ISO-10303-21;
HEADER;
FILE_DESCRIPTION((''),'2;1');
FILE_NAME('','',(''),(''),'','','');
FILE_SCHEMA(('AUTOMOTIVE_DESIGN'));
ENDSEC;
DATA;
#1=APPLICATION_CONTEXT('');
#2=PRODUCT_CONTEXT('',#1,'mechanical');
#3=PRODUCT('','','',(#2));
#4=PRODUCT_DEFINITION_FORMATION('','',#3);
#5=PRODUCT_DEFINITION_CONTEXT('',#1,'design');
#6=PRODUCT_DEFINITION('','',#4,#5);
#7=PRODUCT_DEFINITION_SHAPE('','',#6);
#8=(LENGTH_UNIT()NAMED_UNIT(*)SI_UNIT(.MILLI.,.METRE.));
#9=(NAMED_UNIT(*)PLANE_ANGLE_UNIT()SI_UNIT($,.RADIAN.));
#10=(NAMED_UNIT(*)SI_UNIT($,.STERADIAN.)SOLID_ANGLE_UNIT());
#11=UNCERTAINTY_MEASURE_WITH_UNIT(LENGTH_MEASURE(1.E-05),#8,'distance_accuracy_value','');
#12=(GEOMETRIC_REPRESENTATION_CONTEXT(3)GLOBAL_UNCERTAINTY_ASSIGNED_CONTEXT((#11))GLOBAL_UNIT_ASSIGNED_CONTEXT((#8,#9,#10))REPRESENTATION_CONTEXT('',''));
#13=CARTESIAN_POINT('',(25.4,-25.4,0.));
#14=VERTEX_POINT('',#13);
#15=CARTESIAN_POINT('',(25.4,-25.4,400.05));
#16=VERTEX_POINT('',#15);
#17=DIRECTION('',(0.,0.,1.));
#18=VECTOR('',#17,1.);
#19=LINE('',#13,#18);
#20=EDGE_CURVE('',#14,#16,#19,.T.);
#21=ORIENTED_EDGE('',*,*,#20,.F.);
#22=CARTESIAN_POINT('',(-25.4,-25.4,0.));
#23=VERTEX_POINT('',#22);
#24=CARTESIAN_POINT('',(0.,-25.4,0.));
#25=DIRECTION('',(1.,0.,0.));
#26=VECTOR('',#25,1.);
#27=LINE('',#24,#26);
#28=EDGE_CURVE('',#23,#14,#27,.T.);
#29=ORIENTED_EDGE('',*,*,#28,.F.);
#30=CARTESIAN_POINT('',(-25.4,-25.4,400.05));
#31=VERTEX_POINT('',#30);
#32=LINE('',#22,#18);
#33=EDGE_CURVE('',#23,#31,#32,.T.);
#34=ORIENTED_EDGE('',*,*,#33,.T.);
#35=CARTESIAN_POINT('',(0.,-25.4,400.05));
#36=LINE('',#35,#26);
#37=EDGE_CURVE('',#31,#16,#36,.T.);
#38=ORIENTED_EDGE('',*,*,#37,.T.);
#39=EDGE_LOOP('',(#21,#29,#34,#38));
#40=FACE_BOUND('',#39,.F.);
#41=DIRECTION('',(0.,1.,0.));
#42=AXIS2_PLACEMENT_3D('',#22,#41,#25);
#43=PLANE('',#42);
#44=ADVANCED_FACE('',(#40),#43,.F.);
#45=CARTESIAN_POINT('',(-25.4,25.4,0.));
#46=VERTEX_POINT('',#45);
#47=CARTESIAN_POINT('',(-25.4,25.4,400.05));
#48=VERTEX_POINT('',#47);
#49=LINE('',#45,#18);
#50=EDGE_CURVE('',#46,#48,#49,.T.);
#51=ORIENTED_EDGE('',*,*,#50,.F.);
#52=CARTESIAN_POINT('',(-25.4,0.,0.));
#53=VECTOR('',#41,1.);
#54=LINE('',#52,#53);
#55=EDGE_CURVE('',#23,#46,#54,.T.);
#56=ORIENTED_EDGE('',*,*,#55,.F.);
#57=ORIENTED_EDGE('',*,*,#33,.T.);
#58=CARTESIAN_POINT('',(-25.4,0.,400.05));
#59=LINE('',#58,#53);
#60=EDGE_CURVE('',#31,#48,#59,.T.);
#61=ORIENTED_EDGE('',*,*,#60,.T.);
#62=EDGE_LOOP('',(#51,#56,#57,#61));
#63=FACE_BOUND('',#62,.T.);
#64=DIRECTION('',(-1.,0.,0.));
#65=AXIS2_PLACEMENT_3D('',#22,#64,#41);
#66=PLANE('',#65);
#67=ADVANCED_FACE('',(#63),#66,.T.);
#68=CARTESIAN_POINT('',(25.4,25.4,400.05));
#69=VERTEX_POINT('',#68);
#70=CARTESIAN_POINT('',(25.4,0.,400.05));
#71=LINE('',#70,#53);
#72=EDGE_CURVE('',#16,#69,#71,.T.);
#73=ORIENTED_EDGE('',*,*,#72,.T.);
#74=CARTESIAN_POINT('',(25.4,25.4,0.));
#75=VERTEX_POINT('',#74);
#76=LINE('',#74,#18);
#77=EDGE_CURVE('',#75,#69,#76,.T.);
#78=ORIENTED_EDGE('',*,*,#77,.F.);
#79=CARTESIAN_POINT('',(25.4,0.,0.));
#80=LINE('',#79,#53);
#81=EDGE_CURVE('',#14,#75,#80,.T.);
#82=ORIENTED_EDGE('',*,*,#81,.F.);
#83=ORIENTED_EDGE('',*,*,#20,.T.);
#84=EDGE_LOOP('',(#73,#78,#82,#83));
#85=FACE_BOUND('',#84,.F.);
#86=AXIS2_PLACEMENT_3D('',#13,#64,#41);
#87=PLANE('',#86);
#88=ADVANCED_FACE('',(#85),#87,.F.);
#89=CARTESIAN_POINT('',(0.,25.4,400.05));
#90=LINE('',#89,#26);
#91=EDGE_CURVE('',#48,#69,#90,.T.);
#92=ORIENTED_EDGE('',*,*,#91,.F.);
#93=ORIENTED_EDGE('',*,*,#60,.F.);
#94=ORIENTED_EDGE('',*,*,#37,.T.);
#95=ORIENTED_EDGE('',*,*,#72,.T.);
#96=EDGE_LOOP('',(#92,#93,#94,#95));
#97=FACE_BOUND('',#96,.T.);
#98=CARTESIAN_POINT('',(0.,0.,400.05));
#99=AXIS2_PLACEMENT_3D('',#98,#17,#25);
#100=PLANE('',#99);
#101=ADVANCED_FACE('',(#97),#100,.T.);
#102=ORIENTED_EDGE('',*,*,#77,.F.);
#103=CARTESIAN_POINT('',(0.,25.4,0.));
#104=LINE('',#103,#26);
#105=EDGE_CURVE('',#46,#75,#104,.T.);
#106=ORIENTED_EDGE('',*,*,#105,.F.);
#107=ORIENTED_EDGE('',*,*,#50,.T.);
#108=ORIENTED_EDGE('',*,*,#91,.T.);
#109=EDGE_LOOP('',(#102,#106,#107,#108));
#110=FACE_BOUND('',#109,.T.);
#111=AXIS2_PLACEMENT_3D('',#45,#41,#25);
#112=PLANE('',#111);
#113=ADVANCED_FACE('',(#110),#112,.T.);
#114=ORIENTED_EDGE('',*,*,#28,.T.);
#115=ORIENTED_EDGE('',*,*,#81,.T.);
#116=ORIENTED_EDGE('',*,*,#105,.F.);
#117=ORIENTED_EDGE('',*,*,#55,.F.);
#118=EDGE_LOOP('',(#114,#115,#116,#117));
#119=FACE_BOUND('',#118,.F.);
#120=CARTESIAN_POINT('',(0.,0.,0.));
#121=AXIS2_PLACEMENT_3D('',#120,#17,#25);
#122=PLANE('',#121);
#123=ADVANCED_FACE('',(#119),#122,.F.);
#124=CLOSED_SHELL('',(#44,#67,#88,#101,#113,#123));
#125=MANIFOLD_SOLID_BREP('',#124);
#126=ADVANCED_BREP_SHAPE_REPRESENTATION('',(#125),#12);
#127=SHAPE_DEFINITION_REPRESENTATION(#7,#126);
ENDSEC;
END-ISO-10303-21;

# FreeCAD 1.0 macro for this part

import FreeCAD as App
import Part
import Sketcher
from FreeCAD import Vector
Q = App.Units.Quantity

doc = App.newDocument("Part")
body = doc.addObject("PartDesign::Body", "Body")

sketch1 = doc.addObject("Sketcher::SketchObject", "Sketch")
body.addObject(sketch1)
sketch1.AttachmentSupport = (doc.XY_Plane, [""])
sketch1.MapMode = "FlatFace"
sketch1.addGeometry([
    Part.LineSegment(Vector(-25, 25, 0), Vector(-25, -25, 0)),
    Part.LineSegment(Vector(-25, -25, 0), Vector(25, -25, 0)),
    Part.LineSegment(Vector(25, -25, 0), Vector(25, 25, 0)),
    Part.LineSegment(Vector(25, 25, 0), Vector(-25, 25, 0)),
], False)
sketch1.addConstraint([
    Sketcher.Constraint("Coincident", 0, 2, 1, 1),
    Sketcher.Constraint("Coincident", 1, 2, 2, 1),
    Sketcher.Constraint("Coincident", 2, 2, 3, 1),
    Sketcher.Constraint("Coincident", 3, 2, 0, 1),
    Sketcher.Constraint("Vertical", 0),
    Sketcher.Constraint("Horizontal", 1),
    Sketcher.Constraint("Vertical", 2),
    Sketcher.Constraint("Horizontal", 3),
    Sketcher.Constraint("Symmetric", 0, 2, 2, 2, -1, 1),
    Sketcher.Constraint("Equal", 3, 0),
    Sketcher.Constraint("DistanceX", 1, 1, 1, 2, Q("2 in")),
])
pad1 = doc.addObject("PartDesign::Pad", "Pad")
body.addObject(pad1)
pad1.Profile = sketch1
pad1.Length = Q("15.75 in")

doc.recompute()
